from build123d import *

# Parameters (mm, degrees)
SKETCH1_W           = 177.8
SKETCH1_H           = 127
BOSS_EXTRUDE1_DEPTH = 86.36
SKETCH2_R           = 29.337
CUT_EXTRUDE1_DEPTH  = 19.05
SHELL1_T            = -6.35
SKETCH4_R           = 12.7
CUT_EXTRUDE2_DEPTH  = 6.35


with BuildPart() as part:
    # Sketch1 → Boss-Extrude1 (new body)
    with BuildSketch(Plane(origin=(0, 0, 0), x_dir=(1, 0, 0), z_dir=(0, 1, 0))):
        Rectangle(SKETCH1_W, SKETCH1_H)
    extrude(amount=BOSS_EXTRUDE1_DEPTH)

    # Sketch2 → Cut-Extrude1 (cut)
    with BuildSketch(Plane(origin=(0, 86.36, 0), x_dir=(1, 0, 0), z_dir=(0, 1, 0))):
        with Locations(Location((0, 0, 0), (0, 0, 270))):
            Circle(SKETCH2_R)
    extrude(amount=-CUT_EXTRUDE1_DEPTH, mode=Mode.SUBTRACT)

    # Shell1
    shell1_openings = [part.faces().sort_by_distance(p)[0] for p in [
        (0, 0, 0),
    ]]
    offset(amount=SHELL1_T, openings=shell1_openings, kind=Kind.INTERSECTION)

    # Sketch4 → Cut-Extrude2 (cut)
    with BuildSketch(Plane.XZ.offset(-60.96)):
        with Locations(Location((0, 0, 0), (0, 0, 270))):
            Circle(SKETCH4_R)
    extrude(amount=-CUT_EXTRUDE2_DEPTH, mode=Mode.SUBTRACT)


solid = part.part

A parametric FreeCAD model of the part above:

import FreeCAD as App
import Part
import Sketcher
Q = App.Units.Quantity


def faces_at(feature, points):
    """Names of the faces that lie closest to the given points."""
    faces = feature.Shape.Faces
    near = lambda p: min(range(len(faces)), key=lambda i: faces[i].distToShape(Part.Vertex(*p))[0])
    return sorted({f"Face{near(p) + 1}" for p in points})


def add_polygon(sketch, points):
    """Adds a closed chain of lines whose ends are joined by coincident constraints."""
    first, n = sketch.GeometryCount, len(points)
    for a, b in zip(points, points[1:] + points[:1]):
        sketch.addGeometry(Part.LineSegment(App.Vector(*a, 0), App.Vector(*b, 0)), False)
    for i in range(n):
        sketch.addConstraint(Sketcher.Constraint("Coincident", first + i, 2, first + (i + 1) % n, 1))

doc = App.newDocument("Part")
params = doc.addObject("Spreadsheet::Sheet", "Params")
for row, (alias, value) in enumerate([
    ("sketch1_width", "7 in"),
    ("sketch1_height", "5 in"),
    ("pad1_length", "3.4 in"),
    ("sketch2_diameter", "2.31 in"),
    ("pocket1_length", "0.75 in"),
    ("thickness_wall", "0.25 in"),
    ("sketch3_diameter", "1 in"),
    ("pocket2_length", "0.25 in"),
], start=1):
    params.set(f"A{row}", alias)
    params.set(f"B{row}", "=" + value)
    params.setAlias(f"B{row}", alias)

body = doc.addObject("PartDesign::Body", "Body")

sketch1 = body.newObject("Sketcher::SketchObject", "Sketch")
sketch1.AttachmentSupport = (doc.getObject("XZ_Plane"), [""])
sketch1.MapMode = "FlatFace"
add_polygon(sketch1, [(-88.9, -63.5), (-88.9, 63.5), (88.9, 63.5), (88.9, -63.5)])
sketch1.addConstraint([
    Sketcher.Constraint("Vertical", 0),
    Sketcher.Constraint("Horizontal", 1),
    Sketcher.Constraint("Vertical", 2),
    Sketcher.Constraint("Horizontal", 3),
    Sketcher.Constraint("Symmetric", 0, 2, 2, 2, -1, 1),
    Sketcher.Constraint("DistanceX", 1, 1, 1, 2, Q("7 in")),
    Sketcher.Constraint("DistanceY", 0, 1, 0, 2, Q("5 in")),
])
sketch1.setExpression("Constraints[9]", "Params.sketch1_width")
sketch1.setExpression("Constraints[10]", "Params.sketch1_height")
pad1 = body.newObject("PartDesign::Pad", "Pad")
pad1.Profile = sketch1
pad1.setExpression("Length", "Params.pad1_length")
pad1.Reversed = True

sketch2 = body.newObject("Sketcher::SketchObject", "Sketch001")
sketch2.AttachmentSupport = (doc.getObject("XZ_Plane"), [""])
sketch2.MapMode = "FlatFace"
sketch2.AttachmentOffset = App.Placement(App.Vector(0, 0, -3.4 * 25.4), App.Rotation())
sketch2.addGeometry(Part.Circle(App.Vector(0, 0, 0), App.Vector(0, 0, 1), 29.337), False)
sketch2.addConstraint([
    Sketcher.Constraint("Coincident", 0, 3, -1, 1),
    Sketcher.Constraint("Diameter", 0, Q("2.31 in")),
])
sketch2.setExpression("Constraints[1]", "Params.sketch2_diameter")
pocket1 = body.newObject("PartDesign::Pocket", "Pocket")
pocket1.Profile = sketch2
pocket1.setExpression("Length", "Params.pocket1_length")
pocket1.Reversed = True
doc.recompute()

thickness = body.newObject("PartDesign::Thickness", "Thickness")
thickness.Base = (pocket1, faces_at(pocket1, [(0, 0, 0)]))
thickness.setExpression("Value", "Params.thickness_wall")
thickness.Reversed = True
thickness.Join = "Intersection"

sketch3 = body.newObject("Sketcher::SketchObject", "Sketch002")
sketch3.AttachmentSupport = (doc.getObject("XZ_Plane"), [""])
sketch3.MapMode = "FlatFace"
sketch3.AttachmentOffset = App.Placement(App.Vector(0, 0, -2.4 * 25.4), App.Rotation())
sketch3.addGeometry(Part.Circle(App.Vector(0, 0, 0), App.Vector(0, 0, 1), 12.7), False)
sketch3.addConstraint([
    Sketcher.Constraint("Coincident", 0, 3, -1, 1),
    Sketcher.Constraint("Diameter", 0, Q("1 in")),
])
sketch3.setExpression("Constraints[1]", "Params.sketch3_diameter")
pocket2 = body.newObject("PartDesign::Pocket", "Pocket001")
pocket2.Profile = sketch3
pocket2.setExpression("Length", "Params.pocket2_length")

doc.recompute()
